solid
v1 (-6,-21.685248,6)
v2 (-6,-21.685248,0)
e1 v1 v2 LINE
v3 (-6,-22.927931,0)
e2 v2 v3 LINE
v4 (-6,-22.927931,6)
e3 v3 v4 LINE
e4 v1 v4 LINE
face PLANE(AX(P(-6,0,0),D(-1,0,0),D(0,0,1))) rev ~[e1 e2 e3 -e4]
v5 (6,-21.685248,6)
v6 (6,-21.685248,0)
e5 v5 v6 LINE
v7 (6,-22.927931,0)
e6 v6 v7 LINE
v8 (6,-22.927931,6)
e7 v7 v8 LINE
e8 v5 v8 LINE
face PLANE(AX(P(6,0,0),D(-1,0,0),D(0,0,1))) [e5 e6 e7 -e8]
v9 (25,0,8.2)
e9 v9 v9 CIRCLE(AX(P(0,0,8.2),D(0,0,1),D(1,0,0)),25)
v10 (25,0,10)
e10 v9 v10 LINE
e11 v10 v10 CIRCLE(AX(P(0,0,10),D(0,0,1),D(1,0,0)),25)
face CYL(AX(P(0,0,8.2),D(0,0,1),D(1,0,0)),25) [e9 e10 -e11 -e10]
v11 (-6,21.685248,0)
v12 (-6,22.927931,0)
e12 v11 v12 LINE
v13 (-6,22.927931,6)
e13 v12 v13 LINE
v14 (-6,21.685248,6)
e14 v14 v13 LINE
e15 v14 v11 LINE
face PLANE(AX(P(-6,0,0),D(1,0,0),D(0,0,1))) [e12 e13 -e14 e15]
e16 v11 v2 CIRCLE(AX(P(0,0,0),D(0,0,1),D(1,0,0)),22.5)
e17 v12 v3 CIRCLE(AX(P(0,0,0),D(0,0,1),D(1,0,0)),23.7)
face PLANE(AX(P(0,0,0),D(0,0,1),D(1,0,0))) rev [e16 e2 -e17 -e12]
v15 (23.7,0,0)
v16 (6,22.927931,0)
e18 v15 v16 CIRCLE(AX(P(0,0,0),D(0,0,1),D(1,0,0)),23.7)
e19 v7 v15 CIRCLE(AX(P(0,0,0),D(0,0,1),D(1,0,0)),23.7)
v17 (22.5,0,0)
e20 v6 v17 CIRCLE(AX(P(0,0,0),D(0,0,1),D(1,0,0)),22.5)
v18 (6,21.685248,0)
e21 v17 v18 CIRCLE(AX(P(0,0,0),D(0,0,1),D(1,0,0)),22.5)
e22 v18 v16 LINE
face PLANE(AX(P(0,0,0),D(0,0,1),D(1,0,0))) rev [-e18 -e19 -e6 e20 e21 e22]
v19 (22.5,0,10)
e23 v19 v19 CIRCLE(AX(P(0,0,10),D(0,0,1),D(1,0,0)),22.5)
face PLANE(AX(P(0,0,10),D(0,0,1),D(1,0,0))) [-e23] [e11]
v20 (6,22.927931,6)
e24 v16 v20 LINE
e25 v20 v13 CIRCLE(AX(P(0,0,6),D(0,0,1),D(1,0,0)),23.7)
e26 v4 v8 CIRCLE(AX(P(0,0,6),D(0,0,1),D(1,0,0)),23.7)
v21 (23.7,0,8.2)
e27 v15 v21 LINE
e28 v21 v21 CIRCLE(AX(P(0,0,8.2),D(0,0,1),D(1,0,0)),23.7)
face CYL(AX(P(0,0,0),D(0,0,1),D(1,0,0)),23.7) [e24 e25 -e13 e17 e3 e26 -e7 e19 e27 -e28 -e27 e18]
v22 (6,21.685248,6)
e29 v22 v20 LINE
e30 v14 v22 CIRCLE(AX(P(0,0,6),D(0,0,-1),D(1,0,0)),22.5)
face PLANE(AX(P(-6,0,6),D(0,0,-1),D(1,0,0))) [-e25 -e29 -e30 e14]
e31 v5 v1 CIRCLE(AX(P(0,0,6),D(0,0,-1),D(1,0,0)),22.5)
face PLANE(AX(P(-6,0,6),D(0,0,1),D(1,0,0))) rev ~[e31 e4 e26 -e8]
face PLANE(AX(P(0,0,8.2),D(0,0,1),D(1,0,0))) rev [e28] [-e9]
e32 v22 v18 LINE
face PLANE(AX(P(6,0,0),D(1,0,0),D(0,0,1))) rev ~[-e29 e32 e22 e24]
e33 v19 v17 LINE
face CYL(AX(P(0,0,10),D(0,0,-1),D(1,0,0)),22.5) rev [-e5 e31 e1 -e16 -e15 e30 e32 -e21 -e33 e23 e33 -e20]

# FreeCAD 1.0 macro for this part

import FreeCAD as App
import Part
import Sketcher


def add_polygon(sketch, points):
    """Adds a closed chain of lines whose ends are joined by coincident constraints."""
    first, n = sketch.GeometryCount, len(points)
    for a, b in zip(points, points[1:] + points[:1]):
        sketch.addGeometry(Part.LineSegment(App.Vector(*a, 0), App.Vector(*b, 0)), False)
    for i in range(n):
        sketch.addConstraint(Sketcher.Constraint("Coincident", first + i, 2, first + (i + 1) % n, 1))

doc = App.newDocument("Part")
params = doc.addObject("Spreadsheet::Sheet", "Params")
for row, (alias, value) in enumerate([
    ("sketch1_height", "10 mm"),
    ("sketch1_width", "1.2 mm"),
    ("sketch1_width2", "1.3 mm"),
    ("sketch1_height2", "8.2 mm"),
    ("revolution_angle", "360 deg"),
    ("sketch2_width", "12 mm"),
    ("sketch2_height", "6 mm"),
], start=1):
    params.set(f"A{row}", alias)
    params.set(f"B{row}", "=" + value)
    params.setAlias(f"B{row}", alias)

body = doc.addObject("PartDesign::Body", "Body")

sketch1 = doc.addObject("Sketcher::SketchObject", "Sketch")
body.addObject(sketch1)
sketch1.AttachmentSupport = (doc.XZ_Plane, [""])
sketch1.MapMode = "FlatFace"
add_polygon(sketch1, [(22.5, 10), (22.5, 0), (23.7, 0), (23.7, 8.2), (25, 8.2), (25, 10)])
sketch1.addConstraint(Sketcher.Constraint("Vertical", 0))
sketch1.addConstraint(Sketcher.Constraint("Horizontal", 1))
sketch1.addConstraint(Sketcher.Constraint("Vertical", 2))
sketch1.addConstraint(Sketcher.Constraint("Horizontal", 3))
sketch1.addConstraint(Sketcher.Constraint("Vertical", 4))
sketch1.addConstraint(Sketcher.Constraint("Horizontal", 5))
sketch1.addConstraint(Sketcher.Constraint("PointOnObject", 0, 2, -1))
sketch1.addConstraint(Sketcher.Constraint("DistanceY", 0, 2, 0, 1, 10.0))
sketch1.addConstraint(Sketcher.Constraint("DistanceX", 1, 1, 1, 2, 1.2))
sketch1.addConstraint(Sketcher.Constraint("DistanceX", 3, 1, 3, 2, 1.3))
sketch1.addConstraint(Sketcher.Constraint("DistanceY", 2, 1, 2, 2, 8.2))
sketch1.addConstraint(Sketcher.Constraint("DistanceX", -1, 1, 3, 2, 25.0))
sketch1.setExpression("Constraints[13]", "Params.sketch1_height")
sketch1.setExpression("Constraints[14]", "Params.sketch1_width")
sketch1.setExpression("Constraints[15]", "Params.sketch1_width2")
sketch1.setExpression("Constraints[16]", "Params.sketch1_height2")
revolution = doc.addObject("PartDesign::Revolution", "Revolution")
body.addObject(revolution)
revolution.Profile = sketch1
revolution.ReferenceAxis = (sketch1, ["V_Axis"])
revolution.setExpression("Angle", "Params.revolution_angle")

sketch2 = doc.addObject("Sketcher::SketchObject", "Sketch001")
body.addObject(sketch2)
sketch2.AttachmentSupport = (doc.XZ_Plane, [""])
sketch2.MapMode = "FlatFace"
add_polygon(sketch2, [(-6, 6), (-6, 0), (6, 0), (6, 6)])
sketch2.addConstraint(Sketcher.Constraint("Vertical", 0))
sketch2.addConstraint(Sketcher.Constraint("Horizontal", 1))
sketch2.addConstraint(Sketcher.Constraint("Vertical", 2))
sketch2.addConstraint(Sketcher.Constraint("Horizontal", 3))
sketch2.addConstraint(Sketcher.Constraint("Symmetric", 0, 2, 1, 2, -1, 1))
sketch2.addConstraint(Sketcher.Constraint("DistanceX", 1, 1, 1, 2, 12.0))
sketch2.addConstraint(Sketcher.Constraint("DistanceY", 0, 2, 0, 1, 6.0))
sketch2.setExpression("Constraints[9]", "Params.sketch2_width")
sketch2.setExpression("Constraints[10]", "Params.sketch2_height")
pocket1 = doc.addObject("PartDesign::Pocket", "Pocket")
body.addObject(pocket1)
pocket1.Profile = sketch2
pocket1.Type = "ThroughAll"
pocket1.Midplane = True

doc.recompute()
